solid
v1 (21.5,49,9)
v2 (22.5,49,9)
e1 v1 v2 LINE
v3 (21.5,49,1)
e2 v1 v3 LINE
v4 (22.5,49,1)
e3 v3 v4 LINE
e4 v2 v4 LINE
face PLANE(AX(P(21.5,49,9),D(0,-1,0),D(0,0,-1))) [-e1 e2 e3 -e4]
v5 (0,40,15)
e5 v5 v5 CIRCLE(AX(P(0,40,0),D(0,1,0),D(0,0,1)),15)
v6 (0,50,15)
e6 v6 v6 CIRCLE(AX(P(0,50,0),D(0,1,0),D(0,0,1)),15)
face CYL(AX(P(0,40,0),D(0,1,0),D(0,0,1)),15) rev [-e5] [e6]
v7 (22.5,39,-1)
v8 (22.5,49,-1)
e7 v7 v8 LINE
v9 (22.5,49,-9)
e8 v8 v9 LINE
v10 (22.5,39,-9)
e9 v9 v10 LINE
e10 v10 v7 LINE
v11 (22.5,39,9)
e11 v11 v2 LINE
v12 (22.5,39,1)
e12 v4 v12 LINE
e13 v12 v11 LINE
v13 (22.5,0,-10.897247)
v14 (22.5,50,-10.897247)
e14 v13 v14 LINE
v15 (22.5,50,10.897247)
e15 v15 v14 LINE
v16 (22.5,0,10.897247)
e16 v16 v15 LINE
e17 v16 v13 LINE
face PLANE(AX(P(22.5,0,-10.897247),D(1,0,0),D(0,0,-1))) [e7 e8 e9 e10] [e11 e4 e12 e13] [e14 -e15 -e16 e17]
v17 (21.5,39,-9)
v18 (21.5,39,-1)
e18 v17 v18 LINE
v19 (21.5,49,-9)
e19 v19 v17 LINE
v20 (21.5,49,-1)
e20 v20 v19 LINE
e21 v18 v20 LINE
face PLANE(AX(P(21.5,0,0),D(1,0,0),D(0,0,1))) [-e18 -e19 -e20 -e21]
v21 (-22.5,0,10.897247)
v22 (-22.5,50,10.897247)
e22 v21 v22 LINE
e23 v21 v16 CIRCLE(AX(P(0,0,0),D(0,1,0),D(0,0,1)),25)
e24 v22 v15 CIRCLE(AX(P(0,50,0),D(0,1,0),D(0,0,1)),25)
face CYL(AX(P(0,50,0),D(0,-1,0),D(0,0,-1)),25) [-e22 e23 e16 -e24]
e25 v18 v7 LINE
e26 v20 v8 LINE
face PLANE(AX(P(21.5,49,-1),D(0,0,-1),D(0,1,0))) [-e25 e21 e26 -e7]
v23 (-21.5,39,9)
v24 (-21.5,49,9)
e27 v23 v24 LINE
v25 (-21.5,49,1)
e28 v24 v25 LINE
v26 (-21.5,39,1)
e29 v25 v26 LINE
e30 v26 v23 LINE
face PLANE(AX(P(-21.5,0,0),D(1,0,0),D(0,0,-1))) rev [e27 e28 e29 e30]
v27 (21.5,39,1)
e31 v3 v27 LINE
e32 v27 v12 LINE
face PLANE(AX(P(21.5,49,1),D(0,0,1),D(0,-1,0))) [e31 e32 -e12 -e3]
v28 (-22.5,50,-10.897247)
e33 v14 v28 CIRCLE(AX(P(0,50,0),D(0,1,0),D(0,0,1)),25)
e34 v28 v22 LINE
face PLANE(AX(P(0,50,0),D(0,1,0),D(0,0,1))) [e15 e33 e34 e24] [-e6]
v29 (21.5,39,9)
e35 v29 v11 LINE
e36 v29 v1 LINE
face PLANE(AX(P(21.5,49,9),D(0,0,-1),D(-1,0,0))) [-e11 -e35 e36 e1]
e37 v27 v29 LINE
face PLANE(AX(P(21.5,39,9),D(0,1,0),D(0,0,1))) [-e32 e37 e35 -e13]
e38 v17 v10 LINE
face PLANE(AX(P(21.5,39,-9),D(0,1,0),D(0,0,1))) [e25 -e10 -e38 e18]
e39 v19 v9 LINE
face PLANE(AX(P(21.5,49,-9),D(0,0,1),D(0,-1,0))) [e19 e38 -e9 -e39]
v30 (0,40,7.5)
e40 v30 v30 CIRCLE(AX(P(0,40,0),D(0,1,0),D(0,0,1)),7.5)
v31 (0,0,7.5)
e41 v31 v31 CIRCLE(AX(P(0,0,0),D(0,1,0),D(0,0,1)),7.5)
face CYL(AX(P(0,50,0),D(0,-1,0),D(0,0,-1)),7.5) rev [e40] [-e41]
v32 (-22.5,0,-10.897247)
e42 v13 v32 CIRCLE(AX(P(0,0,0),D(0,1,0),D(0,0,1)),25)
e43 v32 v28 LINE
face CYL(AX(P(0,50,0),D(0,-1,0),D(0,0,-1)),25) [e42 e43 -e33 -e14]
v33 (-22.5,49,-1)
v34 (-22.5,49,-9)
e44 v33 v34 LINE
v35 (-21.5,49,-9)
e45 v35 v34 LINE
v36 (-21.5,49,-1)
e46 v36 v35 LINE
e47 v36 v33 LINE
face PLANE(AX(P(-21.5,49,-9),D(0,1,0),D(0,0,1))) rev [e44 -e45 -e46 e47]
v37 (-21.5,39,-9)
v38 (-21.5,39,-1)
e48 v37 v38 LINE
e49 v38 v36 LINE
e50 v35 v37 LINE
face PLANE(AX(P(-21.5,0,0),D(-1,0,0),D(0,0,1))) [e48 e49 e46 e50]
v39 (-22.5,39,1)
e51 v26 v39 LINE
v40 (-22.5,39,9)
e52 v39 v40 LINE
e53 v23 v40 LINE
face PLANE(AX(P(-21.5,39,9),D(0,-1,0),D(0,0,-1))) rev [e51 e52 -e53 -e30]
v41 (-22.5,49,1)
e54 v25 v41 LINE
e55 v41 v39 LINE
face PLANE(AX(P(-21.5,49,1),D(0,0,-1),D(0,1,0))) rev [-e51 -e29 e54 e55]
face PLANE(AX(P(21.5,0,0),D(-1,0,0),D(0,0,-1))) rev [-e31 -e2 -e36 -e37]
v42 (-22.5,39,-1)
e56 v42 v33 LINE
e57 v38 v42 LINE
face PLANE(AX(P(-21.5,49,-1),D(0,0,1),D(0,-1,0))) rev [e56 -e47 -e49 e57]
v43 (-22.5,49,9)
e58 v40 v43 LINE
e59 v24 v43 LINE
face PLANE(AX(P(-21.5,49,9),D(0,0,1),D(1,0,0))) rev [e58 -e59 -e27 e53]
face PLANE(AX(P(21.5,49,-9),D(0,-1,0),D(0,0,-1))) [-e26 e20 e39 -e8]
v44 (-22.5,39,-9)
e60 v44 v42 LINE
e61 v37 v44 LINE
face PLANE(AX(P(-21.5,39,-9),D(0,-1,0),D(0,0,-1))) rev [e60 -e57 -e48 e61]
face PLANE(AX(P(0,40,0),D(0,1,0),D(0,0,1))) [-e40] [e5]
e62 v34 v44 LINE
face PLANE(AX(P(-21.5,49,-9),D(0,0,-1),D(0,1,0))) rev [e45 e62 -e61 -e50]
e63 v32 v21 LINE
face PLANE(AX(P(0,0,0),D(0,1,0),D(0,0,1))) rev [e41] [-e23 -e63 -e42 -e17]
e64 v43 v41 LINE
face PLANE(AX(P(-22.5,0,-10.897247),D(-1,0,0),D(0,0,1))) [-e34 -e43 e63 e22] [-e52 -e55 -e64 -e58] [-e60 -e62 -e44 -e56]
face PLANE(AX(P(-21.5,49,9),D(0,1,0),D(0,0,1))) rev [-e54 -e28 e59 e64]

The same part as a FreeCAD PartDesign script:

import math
import FreeCAD as App
import Part
import Sketcher
Q = App.Units.Quantity

doc = App.newDocument("Part")
body = doc.addObject("PartDesign::Body", "Body")

sketch1 = body.newObject("Sketcher::SketchObject", "Sketch")
sketch1.AttachmentSupport = (doc.getObject("XZ_Plane"), [""])
sketch1.MapMode = "FlatFace"
sketch1.addGeometry([
    Part.Circle(App.Vector(0, 0, 0), App.Vector(0, 0, 1), 25),
    Part.Circle(App.Vector(0, 0, 0), App.Vector(0, 0, 1), 8),
], False)
sketch1.addConstraint([
    Sketcher.Constraint("Coincident", 0, 3, -1, 1),
    Sketcher.Constraint("Coincident", 1, 3, -1, 1),
    Sketcher.Constraint("Diameter", 0, Q("50 mm")),
    Sketcher.Constraint("Diameter", 1, Q("15 mm")),
])
pad1 = body.newObject("PartDesign::Pad", "Pad")
pad1.Profile = sketch1
pad1.Length = 50
pad1.Reversed = True

sketch2 = body.newObject("Sketcher::SketchObject", "Sketch001")
sketch2.AttachmentSupport = (doc.getObject("XZ_Plane"), [""])
sketch2.MapMode = "FlatFace"
sketch2.AttachmentOffset = App.Placement(App.Vector(0, 0, -50), App.Rotation())
sketch2.addGeometry(Part.Circle(App.Vector(0, 0, 0), App.Vector(0, 0, 1), 15), False)
sketch2.addConstraint([
    Sketcher.Constraint("Coincident", 0, 3, -1, 1),
    Sketcher.Constraint("Diameter", 0, Q("30 mm")),
])
pocket1 = body.newObject("PartDesign::Pocket", "Pocket")
pocket1.Profile = sketch2
pocket1.Length = 10
pocket1.Reversed = True

sketch3 = body.newObject("Sketcher::SketchObject", "Sketch002")
sketch3.AttachmentSupport = (doc.getObject("XZ_Plane"), [""])
sketch3.MapMode = "FlatFace"
sketch3.AttachmentOffset = App.Placement(App.Vector(0, 0, -50), App.Rotation())
sketch3.addGeometry([
    Part.LineSegment(App.Vector(-35, -35, 0), App.Vector(-35, 35, 0)),
    Part.LineSegment(App.Vector(-35, 35, 0), App.Vector(35, 35, 0)),
    Part.LineSegment(App.Vector(35, 35, 0), App.Vector(35, -35, 0)),
    Part.LineSegment(App.Vector(35, -35, 0), App.Vector(-35, -35, 0)),
    Part.LineSegment(App.Vector(-22, 11, 0), App.Vector(-22, -11, 0)),
    Part.ArcOfCircle(Part.Circle(App.Vector(0, 0, 0), App.Vector(0, 0, 1), 25), math.radians(-154), math.radians(-26)),
    Part.LineSegment(App.Vector(22, -11, 0), App.Vector(22, 11, 0)),
    Part.ArcOfCircle(Part.Circle(App.Vector(0, 0, 0), App.Vector(0, 0, 1), 25), math.radians(26), math.radians(154)),
], False)
sketch3.addConstraint([
    Sketcher.Constraint("Coincident", 0, 2, 1, 1),
    Sketcher.Constraint("Coincident", 1, 2, 2, 1),
    Sketcher.Constraint("Coincident", 2, 2, 3, 1),
    Sketcher.Constraint("Coincident", 3, 2, 0, 1),
    Sketcher.Constraint("Coincident", 4, 2, 5, 1),
    Sketcher.Constraint("Coincident", 5, 2, 6, 1),
    Sketcher.Constraint("Coincident", 6, 2, 7, 1),
    Sketcher.Constraint("Coincident", 7, 2, 4, 1),
    Sketcher.Constraint("Vertical", 0),
    Sketcher.Constraint("Horizontal", 1),
    Sketcher.Constraint("Vertical", 2),
    Sketcher.Constraint("Horizontal", 3),
    Sketcher.Constraint("Vertical", 4),
    Sketcher.Constraint("Vertical", 6),
    Sketcher.Constraint("Coincident", 5, 3, -1, 1),
    Sketcher.Constraint("Coincident", 7, 3, -1, 1),
    Sketcher.Constraint("Equal", 5, 7),
    Sketcher.Constraint("Symmetric", 0, 2, 2, 2, -1, 1),
    Sketcher.Constraint("Horizontal", 4, 2, 5, 2),
    Sketcher.Constraint("Equal", 3, 0),
    Sketcher.Constraint("Radius", 5, Q("25 mm")),
    Sketcher.Constraint("DistanceX", 4, 2, 5, 2, Q("45 mm")),
    Sketcher.Constraint("DistanceX", 1, 1, 1, 2, Q("69.32 mm")),
])
pocket2 = body.newObject("PartDesign::Pocket", "Pocket001")
pocket2.Profile = sketch3
pocket2.Type = "ThroughAll"
pocket2.Reversed = True

sketch4 = body.newObject("Sketcher::SketchObject", "Sketch003")
sketch4.AttachmentSupport = (doc.getObject("YZ_Plane"), [""])
sketch4.MapMode = "FlatFace"
sketch4.AttachmentOffset = App.Placement(App.Vector(0, 0, -22.5), App.Rotation())
sketch4.addGeometry([
    Part.LineSegment(App.Vector(49, -9, 0), App.Vector(39, -9, 0)),
    Part.LineSegment(App.Vector(39, -9, 0), App.Vector(39, -1, 0)),
    Part.LineSegment(App.Vector(39, -1, 0), App.Vector(49, -1, 0)),
    Part.LineSegment(App.Vector(49, -1, 0), App.Vector(49, -9, 0)),
    Part.LineSegment(App.Vector(49, 1, 0), App.Vector(39, 1, 0)),
    Part.LineSegment(App.Vector(39, 1, 0), App.Vector(39, 9, 0)),
    Part.LineSegment(App.Vector(39, 9, 0), App.Vector(49, 9, 0)),
    Part.LineSegment(App.Vector(49, 9, 0), App.Vector(49, 1, 0)),
], False)
sketch4.addConstraint([
    Sketcher.Constraint("Coincident", 0, 2, 1, 1),
    Sketcher.Constraint("Coincident", 1, 2, 2, 1),
    Sketcher.Constraint("Coincident", 2, 2, 3, 1),
    Sketcher.Constraint("Coincident", 3, 2, 0, 1),
    Sketcher.Constraint("Coincident", 4, 2, 5, 1),
    Sketcher.Constraint("Coincident", 5, 2, 6, 1),
    Sketcher.Constraint("Coincident", 6, 2, 7, 1),
    Sketcher.Constraint("Coincident", 7, 2, 4, 1),
    Sketcher.Constraint("Horizontal", 0),
    Sketcher.Constraint("Vertical", 1),
    Sketcher.Constraint("Horizontal", 2),
    Sketcher.Constraint("Vertical", 3),
    Sketcher.Constraint("Horizontal", 4),
    Sketcher.Constraint("Vertical", 5),
    Sketcher.Constraint("Horizontal", 6),
    Sketcher.Constraint("Vertical", 7),
    Sketcher.Constraint("Symmetric", 1, 2, 4, 2, -1),
    Sketcher.Constraint("Symmetric", 3, 2, 6, 2, -1),
    Sketcher.Constraint("DistanceX", 0, 2, 0, 1, Q("10 mm")),
    Sketcher.Constraint("DistanceY", 1, 1, 1, 2, Q("8 mm")),
    Sketcher.Constraint("DistanceX", -1, 1, 0, 2, Q("39 mm")),
    Sketcher.Constraint("DistanceY", 0, 2, -1, 1, Q("9 mm")),
])
pocket3 = body.newObject("PartDesign::Pocket", "Pocket002")
pocket3.Profile = sketch4
pocket3.Length = 1
pocket3.Reversed = True
doc.recompute()

mirrored = body.newObject("PartDesign::Mirrored", "Mirrored")
mirrored.Originals = [pocket3]
mirrored.MirrorPlane = (doc.getObject("YZ_Plane"), [""])
body.Tip = mirrored

doc.recompute()
